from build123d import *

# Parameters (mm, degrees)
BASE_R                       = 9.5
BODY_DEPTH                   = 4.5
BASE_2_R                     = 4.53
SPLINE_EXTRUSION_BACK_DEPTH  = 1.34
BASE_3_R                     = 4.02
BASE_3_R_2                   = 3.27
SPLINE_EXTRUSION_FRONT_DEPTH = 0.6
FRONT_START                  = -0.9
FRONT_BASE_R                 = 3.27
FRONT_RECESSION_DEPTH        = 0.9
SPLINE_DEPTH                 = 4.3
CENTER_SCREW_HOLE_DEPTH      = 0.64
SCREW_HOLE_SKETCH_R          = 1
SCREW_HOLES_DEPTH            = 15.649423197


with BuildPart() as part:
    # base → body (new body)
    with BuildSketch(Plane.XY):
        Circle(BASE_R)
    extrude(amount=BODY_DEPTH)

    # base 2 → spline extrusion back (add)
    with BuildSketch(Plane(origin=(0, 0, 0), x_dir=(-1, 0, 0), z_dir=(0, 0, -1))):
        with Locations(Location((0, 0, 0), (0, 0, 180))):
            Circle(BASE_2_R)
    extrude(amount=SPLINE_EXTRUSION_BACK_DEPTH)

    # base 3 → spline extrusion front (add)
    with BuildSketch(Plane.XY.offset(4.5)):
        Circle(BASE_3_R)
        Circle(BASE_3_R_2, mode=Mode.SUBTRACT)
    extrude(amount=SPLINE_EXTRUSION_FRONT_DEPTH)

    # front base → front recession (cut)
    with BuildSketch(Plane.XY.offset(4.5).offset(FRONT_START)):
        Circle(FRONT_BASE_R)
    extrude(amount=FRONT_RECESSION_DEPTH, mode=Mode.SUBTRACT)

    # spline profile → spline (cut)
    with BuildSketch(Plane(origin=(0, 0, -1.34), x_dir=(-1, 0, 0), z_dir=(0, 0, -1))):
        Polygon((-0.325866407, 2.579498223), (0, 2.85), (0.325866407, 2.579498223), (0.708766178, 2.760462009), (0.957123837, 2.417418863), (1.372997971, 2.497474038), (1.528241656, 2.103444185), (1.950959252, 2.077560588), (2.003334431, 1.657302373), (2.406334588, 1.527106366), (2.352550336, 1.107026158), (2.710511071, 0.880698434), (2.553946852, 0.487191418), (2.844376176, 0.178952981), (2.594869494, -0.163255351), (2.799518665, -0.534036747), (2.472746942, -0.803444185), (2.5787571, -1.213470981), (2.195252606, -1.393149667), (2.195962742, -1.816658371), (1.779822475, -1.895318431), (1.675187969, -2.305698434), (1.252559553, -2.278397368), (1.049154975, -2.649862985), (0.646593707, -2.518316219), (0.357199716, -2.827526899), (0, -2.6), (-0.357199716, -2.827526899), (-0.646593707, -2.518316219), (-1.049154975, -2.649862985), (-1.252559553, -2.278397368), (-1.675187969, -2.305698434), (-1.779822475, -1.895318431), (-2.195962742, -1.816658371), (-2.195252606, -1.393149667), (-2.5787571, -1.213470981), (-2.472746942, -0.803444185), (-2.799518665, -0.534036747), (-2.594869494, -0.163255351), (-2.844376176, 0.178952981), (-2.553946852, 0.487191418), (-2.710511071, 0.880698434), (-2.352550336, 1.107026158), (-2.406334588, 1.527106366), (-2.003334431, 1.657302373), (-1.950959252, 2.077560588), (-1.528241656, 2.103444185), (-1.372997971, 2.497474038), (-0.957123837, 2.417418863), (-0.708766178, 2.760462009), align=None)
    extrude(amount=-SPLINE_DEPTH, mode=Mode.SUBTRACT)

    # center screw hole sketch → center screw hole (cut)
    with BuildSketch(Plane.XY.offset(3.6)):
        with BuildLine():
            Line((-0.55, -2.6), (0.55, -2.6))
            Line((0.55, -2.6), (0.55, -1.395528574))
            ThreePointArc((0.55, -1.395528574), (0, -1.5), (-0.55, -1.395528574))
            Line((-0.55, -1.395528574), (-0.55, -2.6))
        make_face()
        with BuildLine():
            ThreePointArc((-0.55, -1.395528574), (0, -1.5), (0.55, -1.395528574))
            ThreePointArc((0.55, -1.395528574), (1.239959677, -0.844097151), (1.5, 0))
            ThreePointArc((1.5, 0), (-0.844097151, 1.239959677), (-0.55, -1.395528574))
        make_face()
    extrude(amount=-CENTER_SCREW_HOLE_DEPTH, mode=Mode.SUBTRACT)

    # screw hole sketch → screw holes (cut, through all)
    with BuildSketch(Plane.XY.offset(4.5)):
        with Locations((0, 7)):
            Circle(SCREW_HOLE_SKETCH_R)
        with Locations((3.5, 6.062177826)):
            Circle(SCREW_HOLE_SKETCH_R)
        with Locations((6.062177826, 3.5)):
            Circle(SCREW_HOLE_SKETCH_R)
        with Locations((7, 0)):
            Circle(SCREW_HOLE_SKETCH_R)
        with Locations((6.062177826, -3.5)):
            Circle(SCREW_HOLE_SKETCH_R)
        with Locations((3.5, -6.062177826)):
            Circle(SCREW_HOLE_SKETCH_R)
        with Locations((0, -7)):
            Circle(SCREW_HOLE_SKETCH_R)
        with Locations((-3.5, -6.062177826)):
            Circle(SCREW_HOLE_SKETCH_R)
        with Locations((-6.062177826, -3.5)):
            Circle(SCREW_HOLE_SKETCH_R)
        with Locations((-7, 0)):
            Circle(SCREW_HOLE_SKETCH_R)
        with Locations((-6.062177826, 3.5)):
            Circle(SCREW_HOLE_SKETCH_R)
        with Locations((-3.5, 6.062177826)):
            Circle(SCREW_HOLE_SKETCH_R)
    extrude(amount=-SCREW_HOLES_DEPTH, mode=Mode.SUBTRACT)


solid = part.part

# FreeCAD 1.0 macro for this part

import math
import FreeCAD as App
import Part
import Sketcher

V = App.Vector
Q = App.Units.Quantity

doc = App.newDocument("Part")
body = doc.addObject("PartDesign::Body", "Body")

sketch1 = body.newObject("Sketcher::SketchObject", "Sketch")
sketch1.AttachmentSupport = (doc.getObject("XY_Plane"), [""])
sketch1.MapMode = "FlatFace"
sketch1.addGeometry(Part.Circle(V(0, 0, 0), V(0, 0, 1), 10), False)
sketch1.addConstraint(Sketcher.Constraint("Coincident", 0, 3, -1, 1))
sketch1.addConstraint(Sketcher.Constraint("Diameter", 0, Q("19 mm")))
pad1 = body.newObject("PartDesign::Pad", "Pad")
pad1.Profile = sketch1
pad1.Length = 4.5

sketch2 = body.newObject("Sketcher::SketchObject", "Sketch001")
sketch2.AttachmentSupport = (doc.getObject("XY_Plane"), [""])
sketch2.MapMode = "FlatFace"
sketch2.addGeometry(Part.Circle(V(0, 0, 0), V(0, 0, 1), 4.5), False)
sketch2.addConstraint(Sketcher.Constraint("Coincident", 0, 3, -1, 1))
sketch2.addConstraint(Sketcher.Constraint("Diameter", 0, Q("9.06 mm")))
pad2 = body.newObject("PartDesign::Pad", "Pad001")
pad2.Profile = sketch2
pad2.Length = 1.34
pad2.Reversed = True

sketch3 = body.newObject("Sketcher::SketchObject", "Sketch002")
sketch3.AttachmentSupport = (doc.getObject("XY_Plane"), [""])
sketch3.MapMode = "FlatFace"
sketch3.AttachmentOffset = App.Placement(V(0, 0, 4.5), App.Rotation())
sketch3.addGeometry(Part.Circle(V(0, 0, 0), V(0, 0, 1), 4), False)
sketch3.addGeometry(Part.Circle(V(0, 0, 0), V(0, 0, 1), 3.3), False)
sketch3.addConstraint(Sketcher.Constraint("Coincident", 0, 3, -1, 1))
sketch3.addConstraint(Sketcher.Constraint("Coincident", 1, 3, -1, 1))
sketch3.addConstraint(Sketcher.Constraint("Diameter", 0, Q("8.04 mm")))
sketch3.addConstraint(Sketcher.Constraint("Diameter", 1, Q("6.54 mm")))
pad3 = body.newObject("PartDesign::Pad", "Pad002")
pad3.Profile = sketch3
pad3.Length = 0.6

sketch4 = body.newObject("Sketcher::SketchObject", "Sketch003")
sketch4.AttachmentSupport = (doc.getObject("XY_Plane"), [""])
sketch4.MapMode = "FlatFace"
sketch4.AttachmentOffset = App.Placement(V(0, 0, 3.6), App.Rotation())
sketch4.addGeometry(Part.Circle(V(0, 0, 0), V(0, 0, 1), 3.3), False)
sketch4.addConstraint(Sketcher.Constraint("Coincident", 0, 3, -1, 1))
sketch4.addConstraint(Sketcher.Constraint("Diameter", 0, Q("6.54 mm")))
pocket1 = body.newObject("PartDesign::Pocket", "Pocket")
pocket1.Profile = sketch4
pocket1.Length = 0.9
pocket1.Reversed = True

sketch5 = body.newObject("Sketcher::SketchObject", "Sketch004")
sketch5.AttachmentSupport = (doc.getObject("XY_Plane"), [""])
sketch5.MapMode = "FlatFace"
sketch5.AttachmentOffset = App.Placement(V(0, 0, -1.34), App.Rotation())
sketch5.addGeometry(Part.LineSegment(V(0, 2.85, 0), V(0.33, 2.58, 0)), False)
sketch5.addGeometry(Part.LineSegment(V(0.33, 2.58, 0), V(0.71, 2.76, 0)), False)
sketch5.addGeometry(Part.LineSegment(V(0.71, 2.76, 0), V(0.96, 2.42, 0)), False)
sketch5.addGeometry(Part.LineSegment(V(0.96, 2.42, 0), V(1.37, 2.5, 0)), False)
sketch5.addGeometry(Part.LineSegment(V(1.37, 2.5, 0), V(1.53, 2.1, 0)), False)
sketch5.addGeometry(Part.LineSegment(V(1.53, 2.1, 0), V(1.95, 2.08, 0)), False)
sketch5.addGeometry(Part.LineSegment(V(1.95, 2.08, 0), V(2, 1.66, 0)), False)
sketch5.addGeometry(Part.LineSegment(V(2, 1.66, 0), V(2.41, 1.53, 0)), False)
sketch5.addGeometry(Part.LineSegment(V(2.41, 1.53, 0), V(2.35, 1.11, 0)), False)
sketch5.addGeometry(Part.LineSegment(V(2.35, 1.11, 0), V(2.71, 0.88, 0)), False)
sketch5.addGeometry(Part.LineSegment(V(2.71, 0.88, 0), V(2.55, 0.49, 0)), False)
sketch5.addGeometry(Part.LineSegment(V(2.55, 0.49, 0), V(2.84, 0.18, 0)), False)
sketch5.addGeometry(Part.LineSegment(V(2.84, 0.18, 0), V(2.59, -0.16, 0)), False)
sketch5.addGeometry(Part.LineSegment(V(2.59, -0.16, 0), V(2.8, -0.53, 0)), False)
sketch5.addGeometry(Part.LineSegment(V(2.8, -0.53, 0), V(2.47, -0.8, 0)), False)
sketch5.addGeometry(Part.LineSegment(V(2.47, -0.8, 0), V(2.58, -1.21, 0)), False)
sketch5.addGeometry(Part.LineSegment(V(2.58, -1.21, 0), V(2.2, -1.39, 0)), False)
sketch5.addGeometry(Part.LineSegment(V(2.2, -1.39, 0), V(2.2, -1.82, 0)), False)
sketch5.addGeometry(Part.LineSegment(V(2.2, -1.82, 0), V(1.78, -1.9, 0)), False)
sketch5.addGeometry(Part.LineSegment(V(1.78, -1.9, 0), V(1.68, -2.31, 0)), False)
sketch5.addGeometry(Part.LineSegment(V(1.68, -2.31, 0), V(1.25, -2.28, 0)), False)
sketch5.addGeometry(Part.LineSegment(V(1.25, -2.28, 0), V(1.05, -2.65, 0)), False)
sketch5.addGeometry(Part.LineSegment(V(1.05, -2.65, 0), V(0.65, -2.52, 0)), False)
sketch5.addGeometry(Part.LineSegment(V(0.65, -2.52, 0), V(0.36, -2.83, 0)), False)
sketch5.addGeometry(Part.LineSegment(V(0.36, -2.83, 0), V(0, -2.6, 0)), False)
sketch5.addGeometry(Part.LineSegment(V(0, -2.6, 0), V(-0.36, -2.83, 0)), False)
sketch5.addGeometry(Part.LineSegment(V(-0.36, -2.83, 0), V(-0.65, -2.52, 0)), False)
sketch5.addGeometry(Part.LineSegment(V(-0.65, -2.52, 0), V(-1.05, -2.65, 0)), False)
sketch5.addGeometry(Part.LineSegment(V(-1.05, -2.65, 0), V(-1.25, -2.28, 0)), False)
sketch5.addGeometry(Part.LineSegment(V(-1.25, -2.28, 0), V(-1.68, -2.31, 0)), False)
sketch5.addGeometry(Part.LineSegment(V(-1.68, -2.31, 0), V(-1.78, -1.9, 0)), False)
sketch5.addGeometry(Part.LineSegment(V(-1.78, -1.9, 0), V(-2.2, -1.82, 0)), False)
sketch5.addGeometry(Part.LineSegment(V(-2.2, -1.82, 0), V(-2.2, -1.39, 0)), False)
sketch5.addGeometry(Part.LineSegment(V(-2.2, -1.39, 0), V(-2.58, -1.21, 0)), False)
sketch5.addGeometry(Part.LineSegment(V(-2.58, -1.21, 0), V(-2.47, -0.8, 0)), False)
sketch5.addGeometry(Part.LineSegment(V(-2.47, -0.8, 0), V(-2.8, -0.53, 0)), False)
sketch5.addGeometry(Part.LineSegment(V(-2.8, -0.53, 0), V(-2.59, -0.16, 0)), False)
sketch5.addGeometry(Part.LineSegment(V(-2.59, -0.16, 0), V(-2.84, 0.18, 0)), False)
sketch5.addGeometry(Part.LineSegment(V(-2.84, 0.18, 0), V(-2.55, 0.49, 0)), False)
sketch5.addGeometry(Part.LineSegment(V(-2.55, 0.49, 0), V(-2.71, 0.88, 0)), False)
sketch5.addGeometry(Part.LineSegment(V(-2.71, 0.88, 0), V(-2.35, 1.11, 0)), False)
sketch5.addGeometry(Part.LineSegment(V(-2.35, 1.11, 0), V(-2.41, 1.53, 0)), False)
sketch5.addGeometry(Part.LineSegment(V(-2.41, 1.53, 0), V(-2, 1.66, 0)), False)
sketch5.addGeometry(Part.LineSegment(V(-2, 1.66, 0), V(-1.95, 2.08, 0)), False)
sketch5.addGeometry(Part.LineSegment(V(-1.95, 2.08, 0), V(-1.53, 2.1, 0)), False)
sketch5.addGeometry(Part.LineSegment(V(-1.53, 2.1, 0), V(-1.37, 2.5, 0)), False)
sketch5.addGeometry(Part.LineSegment(V(-1.37, 2.5, 0), V(-0.96, 2.42, 0)), False)
sketch5.addGeometry(Part.LineSegment(V(-0.96, 2.42, 0), V(-0.71, 2.76, 0)), False)
sketch5.addGeometry(Part.LineSegment(V(-0.71, 2.76, 0), V(-0.33, 2.58, 0)), False)
sketch5.addGeometry(Part.LineSegment(V(-0.33, 2.58, 0), V(0, 2.85, 0)), False)
sketch5.addConstraint(Sketcher.Constraint("Coincident", 0, 2, 1, 1))
sketch5.addConstraint(Sketcher.Constraint("Coincident", 1, 2, 2, 1))
sketch5.addConstraint(Sketcher.Constraint("Coincident", 2, 2, 3, 1))
sketch5.addConstraint(Sketcher.Constraint("Coincident", 3, 2, 4, 1))
sketch5.addConstraint(Sketcher.Constraint("Coincident", 4, 2, 5, 1))
sketch5.addConstraint(Sketcher.Constraint("Coincident", 5, 2, 6, 1))
sketch5.addConstraint(Sketcher.Constraint("Coincident", 6, 2, 7, 1))
sketch5.addConstraint(Sketcher.Constraint("Coincident", 7, 2, 8, 1))
sketch5.addConstraint(Sketcher.Constraint("Coincident", 8, 2, 9, 1))
sketch5.addConstraint(Sketcher.Constraint("Coincident", 9, 2, 10, 1))
sketch5.addConstraint(Sketcher.Constraint("Coincident", 10, 2, 11, 1))
sketch5.addConstraint(Sketcher.Constraint("Coincident", 11, 2, 12, 1))
sketch5.addConstraint(Sketcher.Constraint("Coincident", 12, 2, 13, 1))
sketch5.addConstraint(Sketcher.Constraint("Coincident", 13, 2, 14, 1))
sketch5.addConstraint(Sketcher.Constraint("Coincident", 14, 2, 15, 1))
sketch5.addConstraint(Sketcher.Constraint("Coincident", 15, 2, 16, 1))
sketch5.addConstraint(Sketcher.Constraint("Coincident", 16, 2, 17, 1))
sketch5.addConstraint(Sketcher.Constraint("Coincident", 17, 2, 18, 1))
sketch5.addConstraint(Sketcher.Constraint("Coincident", 18, 2, 19, 1))
sketch5.addConstraint(Sketcher.Constraint("Coincident", 19, 2, 20, 1))
sketch5.addConstraint(Sketcher.Constraint("Coincident", 20, 2, 21, 1))
sketch5.addConstraint(Sketcher.Constraint("Coincident", 21, 2, 22, 1))
sketch5.addConstraint(Sketcher.Constraint("Coincident", 22, 2, 23, 1))
sketch5.addConstraint(Sketcher.Constraint("Coincident", 23, 2, 24, 1))
sketch5.addConstraint(Sketcher.Constraint("Coincident", 24, 2, 25, 1))
sketch5.addConstraint(Sketcher.Constraint("Coincident", 25, 2, 26, 1))
sketch5.addConstraint(Sketcher.Constraint("Coincident", 26, 2, 27, 1))
sketch5.addConstraint(Sketcher.Constraint("Coincident", 27, 2, 28, 1))
sketch5.addConstraint(Sketcher.Constraint("Coincident", 28, 2, 29, 1))
sketch5.addConstraint(Sketcher.Constraint("Coincident", 29, 2, 30, 1))
sketch5.addConstraint(Sketcher.Constraint("Coincident", 30, 2, 31, 1))
sketch5.addConstraint(Sketcher.Constraint("Coincident", 31, 2, 32, 1))
sketch5.addConstraint(Sketcher.Constraint("Coincident", 32, 2, 33, 1))
sketch5.addConstraint(Sketcher.Constraint("Coincident", 33, 2, 34, 1))
sketch5.addConstraint(Sketcher.Constraint("Coincident", 34, 2, 35, 1))
sketch5.addConstraint(Sketcher.Constraint("Coincident", 35, 2, 36, 1))
sketch5.addConstraint(Sketcher.Constraint("Coincident", 36, 2, 37, 1))
sketch5.addConstraint(Sketcher.Constraint("Coincident", 37, 2, 38, 1))
sketch5.addConstraint(Sketcher.Constraint("Coincident", 38, 2, 39, 1))
sketch5.addConstraint(Sketcher.Constraint("Coincident", 39, 2, 40, 1))
sketch5.addConstraint(Sketcher.Constraint("Coincident", 40, 2, 41, 1))
sketch5.addConstraint(Sketcher.Constraint("Coincident", 41, 2, 42, 1))
sketch5.addConstraint(Sketcher.Constraint("Coincident", 42, 2, 43, 1))
sketch5.addConstraint(Sketcher.Constraint("Coincident", 43, 2, 44, 1))
sketch5.addConstraint(Sketcher.Constraint("Coincident", 44, 2, 45, 1))
sketch5.addConstraint(Sketcher.Constraint("Coincident", 45, 2, 46, 1))
sketch5.addConstraint(Sketcher.Constraint("Coincident", 46, 2, 47, 1))
sketch5.addConstraint(Sketcher.Constraint("Coincident", 47, 2, 48, 1))
sketch5.addConstraint(Sketcher.Constraint("Coincident", 48, 2, 49, 1))
sketch5.addConstraint(Sketcher.Constraint("Coincident", 49, 2, 0, 1))
sketch5.addConstraint(Sketcher.Constraint("Symmetric", 23, 2, 25, 2, -2))
sketch5.addConstraint(Sketcher.Constraint("Symmetric", 22, 2, 26, 2, -2))
sketch5.addConstraint(Sketcher.Constraint("Symmetric", 21, 2, 27, 2, -2))
sketch5.addConstraint(Sketcher.Constraint("Symmetric", 20, 2, 28, 2, -2))
sketch5.addConstraint(Sketcher.Constraint("Symmetric", 19, 2, 29, 2, -2))
sketch5.addConstraint(Sketcher.Constraint("Symmetric", 18, 2, 30, 2, -2))
sketch5.addConstraint(Sketcher.Constraint("Symmetric", 17, 2, 31, 2, -2))
sketch5.addConstraint(Sketcher.Constraint("Symmetric", 16, 2, 32, 2, -2))
sketch5.addConstraint(Sketcher.Constraint("Symmetric", 15, 2, 33, 2, -2))
sketch5.addConstraint(Sketcher.Constraint("Symmetric", 14, 2, 34, 2, -2))
sketch5.addConstraint(Sketcher.Constraint("Symmetric", 13, 2, 35, 2, -2))
sketch5.addConstraint(Sketcher.Constraint("Symmetric", 12, 2, 36, 2, -2))
sketch5.addConstraint(Sketcher.Constraint("Symmetric", 11, 2, 37, 2, -2))
sketch5.addConstraint(Sketcher.Constraint("Symmetric", 10, 2, 38, 2, -2))
sketch5.addConstraint(Sketcher.Constraint("Symmetric", 9, 2, 39, 2, -2))
sketch5.addConstraint(Sketcher.Constraint("Symmetric", 8, 2, 40, 2, -2))
sketch5.addConstraint(Sketcher.Constraint("Symmetric", 7, 2, 41, 2, -2))
sketch5.addConstraint(Sketcher.Constraint("Symmetric", 6, 2, 42, 2, -2))
sketch5.addConstraint(Sketcher.Constraint("Symmetric", 5, 2, 43, 2, -2))
sketch5.addConstraint(Sketcher.Constraint("Symmetric", 4, 2, 44, 2, -2))
sketch5.addConstraint(Sketcher.Constraint("Symmetric", 3, 2, 45, 2, -2))
sketch5.addConstraint(Sketcher.Constraint("Symmetric", 2, 2, 46, 2, -2))
sketch5.addConstraint(Sketcher.Constraint("Symmetric", 1, 2, 47, 2, -2))
sketch5.addConstraint(Sketcher.Constraint("Symmetric", 0, 2, 48, 2, -2))
sketch5.addConstraint(Sketcher.Constraint("PointOnObject", 24, 2, -2))
sketch5.addConstraint(Sketcher.Constraint("PointOnObject", 49, 2, -2))
sketch5.addConstraint(Sketcher.Constraint("Equal", 0, 1))
sketch5.addConstraint(Sketcher.Constraint("Equal", 1, 2))
sketch5.addConstraint(Sketcher.Constraint("Equal", 2, 3))
sketch5.addConstraint(Sketcher.Constraint("Equal", 3, 4))
sketch5.addConstraint(Sketcher.Constraint("Equal", 4, 5))
sketch5.addConstraint(Sketcher.Constraint("Equal", 5, 6))
sketch5.addConstraint(Sketcher.Constraint("Equal", 6, 7))
sketch5.addConstraint(Sketcher.Constraint("Equal", 7, 8))
sketch5.addConstraint(Sketcher.Constraint("Equal", 8, 9))
sketch5.addConstraint(Sketcher.Constraint("Equal", 9, 10))
sketch5.addConstraint(Sketcher.Constraint("Equal", 10, 11))
sketch5.addConstraint(Sketcher.Constraint("Equal", 11, 12))
sketch5.addConstraint(Sketcher.Constraint("Equal", 12, 13))
sketch5.addConstraint(Sketcher.Constraint("Equal", 13, 14))
sketch5.addConstraint(Sketcher.Constraint("Equal", 14, 15))
sketch5.addConstraint(Sketcher.Constraint("Equal", 15, 16))
sketch5.addConstraint(Sketcher.Constraint("Equal", 16, 17))
sketch5.addConstraint(Sketcher.Constraint("Equal", 17, 18))
sketch5.addConstraint(Sketcher.Constraint("Equal", 18, 19))
sketch5.addConstraint(Sketcher.Constraint("Equal", 19, 20))
sketch5.addConstraint(Sketcher.Constraint("Equal", 20, 21))
sketch5.addConstraint(Sketcher.Constraint("Equal", 21, 22))
sketch5.addConstraint(Sketcher.Constraint("Equal", 22, 23))
sketch5.addConstraint(Sketcher.Constraint("Equal", 23, 24))
sketch5.addConstraint(Sketcher.Constraint("DistanceY", 24, 2, -1, 1, Q("2.6 mm")))
sketch5.addConstraint(Sketcher.Constraint("DistanceY", -1, 1, 49, 2, Q("2.85 mm")))
sketch5.addConstraint(Sketcher.Constraint("DistanceX", 6, 2, 7, 2, Q("0.403 mm")))
sketch5.addConstraint(Sketcher.Constraint("DistanceY", -1, 1, 0, 2, Q("2.579498 mm")))
sketch5.addConstraint(Sketcher.Constraint("DistanceY", -1, 1, 9, 2, Q("0.880698 mm")))
sketch5.addConstraint(Sketcher.Constraint("DistanceY", 19, 2, -1, 1, Q("2.305698 mm")))
sketch5.addConstraint(Sketcher.Constraint("DistanceX", -1, 1, 23, 2, Q("0.3572 mm")))
sketch5.addConstraint(Sketcher.Constraint("DistanceX", 0, 2, 1, 2, Q("0.3829 mm")))
sketch5.addConstraint(Sketcher.Constraint("DistanceY", 5, 2, 1, 2, Q("0.682901 mm")))
sketch5.addConstraint(Sketcher.Constraint("DistanceX", 14, 2, 10, 2, Q("0.0812 mm")))
sketch5.addConstraint(Sketcher.Constraint("DistanceY", 19, 2, 20, 2, Q("0.027301 mm")))
sketch5.addConstraint(Sketcher.Constraint("Distance", 0, Q("0.423509 mm")))
sketch5.addConstraint(Sketcher.Constraint("DistanceY", -1, 1, 2, 2, Q("2.417419 mm")))
sketch5.addConstraint(Sketcher.Constraint("DistanceX", -1, 1, 4, 2, Q("1.528242 mm")))
sketch5.addConstraint(Sketcher.Constraint("DistanceX", -1, 1, 5, 2, Q("1.950959 mm")))
sketch5.addConstraint(Sketcher.Constraint("DistanceX", -1, 1, 8, 2, Q("2.35255 mm")))
sketch5.addConstraint(Sketcher.Constraint("DistanceX", -1, 1, 9, 2, Q("2.710511 mm")))
sketch5.addConstraint(Sketcher.Constraint("DistanceY", -1, 1, 10, 2, Q("0.487191 mm")))
sketch5.addConstraint(Sketcher.Constraint("DistanceX", -1, 1, 12, 2, Q("2.594869 mm")))
sketch5.addConstraint(Sketcher.Constraint("DistanceX", -1, 1, 13, 2, Q("2.799519 mm")))
sketch5.addConstraint(Sketcher.Constraint("DistanceY", 15, 2, -1, 1, Q("1.213471 mm")))
sketch5.addConstraint(Sketcher.Constraint("DistanceY", 16, 2, -1, 1, Q("1.39315 mm")))
sketch5.addConstraint(Sketcher.Constraint("DistanceY", 18, 2, -1, 1, Q("1.895318 mm")))
sketch5.addConstraint(Sketcher.Constraint("DistanceX", -1, 1, 20, 2, Q("1.25256 mm")))
sketch5.addConstraint(Sketcher.Constraint("DistanceX", 10, 2, 11, 2, Q("0.290429 mm")))
sketch5.addConstraint(Sketcher.Constraint("DistanceX", 22, 2, 21, 2, Q("0.402561 mm")))
pocket2 = body.newObject("PartDesign::Pocket", "Pocket001")
pocket2.Profile = sketch5
pocket2.Length = 4.3
pocket2.Reversed = True

sketch6 = body.newObject("Sketcher::SketchObject", "Sketch005")
sketch6.AttachmentSupport = (doc.getObject("XY_Plane"), [""])
sketch6.MapMode = "FlatFace"
sketch6.AttachmentOffset = App.Placement(V(0, 0, 3.6), App.Rotation())
sketch6.addGeometry(Part.LineSegment(V(-0.6, -2.6, 0), V(0.6, -2.6, 0)), False)
sketch6.addGeometry(Part.LineSegment(V(0.6, -2.6, 0), V(0.6, -1.4, 0)), False)
sketch6.addGeometry(Part.ArcOfCircle(Part.Circle(V(0, 0, 0), V(0, 0, 1), 1.5), math.radians(-68), math.radians(0)), False)
sketch6.addGeometry(Part.ArcOfCircle(Part.Circle(V(0, 0, 0), V(0, 0, 1), 1.5), math.radians(0), math.radians(248)), False)
sketch6.addGeometry(Part.LineSegment(V(-0.6, -1.4, 0), V(-0.6, -2.6, 0)), False)
sketch6.addConstraint(Sketcher.Constraint("Coincident", 0, 2, 1, 1))
sketch6.addConstraint(Sketcher.Constraint("Coincident", 1, 2, 2, 1))
sketch6.addConstraint(Sketcher.Constraint("Tangent", 2, 2, 3, 1))
sketch6.addConstraint(Sketcher.Constraint("Coincident", 3, 2, 4, 1))
sketch6.addConstraint(Sketcher.Constraint("Coincident", 4, 2, 0, 1))
sketch6.addConstraint(Sketcher.Constraint("Horizontal", 0))
sketch6.addConstraint(Sketcher.Constraint("Vertical", 1))
sketch6.addConstraint(Sketcher.Constraint("Vertical", 4))
sketch6.addConstraint(Sketcher.Constraint("Coincident", 2, 3, -1, 1))
sketch6.addConstraint(Sketcher.Constraint("Equal", 2, 3))
sketch6.addConstraint(Sketcher.Constraint("PointOnObject", 2, 2, -1))
sketch6.addConstraint(Sketcher.Constraint("Horizontal", 1, 2, 3, 2))
sketch6.addConstraint(Sketcher.Constraint("Radius", 2, Q("1.5 mm")))
sketch6.addConstraint(Sketcher.Constraint("DistanceX", 0, 1, 0, 2, Q("1.1 mm")))
sketch6.addConstraint(Sketcher.Constraint("DistanceY", 0, 2, -1, 1, Q("2.6 mm")))
pocket3 = body.newObject("PartDesign::Pocket", "Pocket002")
pocket3.Profile = sketch6
pocket3.Length = 0.64

sketch7 = body.newObject("Sketcher::SketchObject", "Sketch006")
sketch7.AttachmentSupport = (doc.getObject("XY_Plane"), [""])
sketch7.MapMode = "FlatFace"
sketch7.AttachmentOffset = App.Placement(V(0, 0, 4.5), App.Rotation())
sketch7.addGeometry(Part.Circle(V(0, 7, 0), V(0, 0, 1), 1), False)
sketch7.addGeometry(Part.Circle(V(3.5, 6.1, 0), V(0, 0, 1), 1), False)
sketch7.addGeometry(Part.Circle(V(6.1, 3.5, 0), V(0, 0, 1), 1), False)
sketch7.addGeometry(Part.Circle(V(7, 0, 0), V(0, 0, 1), 1), False)
sketch7.addGeometry(Part.Circle(V(6.1, -3.5, 0), V(0, 0, 1), 1), False)
sketch7.addGeometry(Part.Circle(V(3.5, -6.1, 0), V(0, 0, 1), 1), False)
sketch7.addGeometry(Part.Circle(V(0, -7, 0), V(0, 0, 1), 1), False)
sketch7.addGeometry(Part.Circle(V(-3.5, -6.1, 0), V(0, 0, 1), 1), False)
sketch7.addGeometry(Part.Circle(V(-6.1, -3.5, 0), V(0, 0, 1), 1), False)
sketch7.addGeometry(Part.Circle(V(-7, 0, 0), V(0, 0, 1), 1), False)
sketch7.addGeometry(Part.Circle(V(-6.1, 3.5, 0), V(0, 0, 1), 1), False)
sketch7.addGeometry(Part.Circle(V(-3.5, 6.1, 0), V(0, 0, 1), 1), False)
sketch7.addConstraint(Sketcher.Constraint("Equal", 0, 1))
sketch7.addConstraint(Sketcher.Constraint("Equal", 1, 2))
sketch7.addConstraint(Sketcher.Constraint("Equal", 2, 3))
sketch7.addConstraint(Sketcher.Constraint("Equal", 3, 4))
sketch7.addConstraint(Sketcher.Constraint("Equal", 4, 5))
sketch7.addConstraint(Sketcher.Constraint("Equal", 5, 6))
sketch7.addConstraint(Sketcher.Constraint("Equal", 6, 7))
sketch7.addConstraint(Sketcher.Constraint("Equal", 7, 8))
sketch7.addConstraint(Sketcher.Constraint("Equal", 8, 9))
sketch7.addConstraint(Sketcher.Constraint("Equal", 9, 10))
sketch7.addConstraint(Sketcher.Constraint("Equal", 10, 11))
sketch7.addConstraint(Sketcher.Constraint("Symmetric", 0, 3, 6, 3, -1, 1))
sketch7.addConstraint(Sketcher.Constraint("Symmetric", 1, 3, 7, 3, -1, 1))
sketch7.addConstraint(Sketcher.Constraint("Symmetric", 2, 3, 8, 3, -1, 1))
sketch7.addConstraint(Sketcher.Constraint("Symmetric", 3, 3, 9, 3, -1, 1))
sketch7.addConstraint(Sketcher.Constraint("Symmetric", 4, 3, 10, 3, -1, 1))
sketch7.addConstraint(Sketcher.Constraint("Symmetric", 5, 3, 11, 3, -1, 1))
sketch7.addConstraint(Sketcher.Constraint("Symmetric", 5, 3, 7, 3, -2))
sketch7.addConstraint(Sketcher.Constraint("Symmetric", 4, 3, 8, 3, -2))
sketch7.addConstraint(Sketcher.Constraint("PointOnObject", 0, 3, -2))
sketch7.addConstraint(Sketcher.Constraint("PointOnObject", 3, 3, -1))
sketch7.addConstraint(Sketcher.Constraint("Diameter", 0, Q("2 mm")))
sketch7.addConstraint(Sketcher.Constraint("DistanceY", -1, 1, 0, 3, Q("7 mm")))
sketch7.addConstraint(Sketcher.Constraint("DistanceX", -1, 1, 3, 3, Q("7 mm")))
sketch7.addConstraint(Sketcher.Constraint("DistanceY", 4, 3, 2, 3, Q("7 mm")))
sketch7.addConstraint(Sketcher.Constraint("DistanceX", 7, 3, 5, 3, Q("7 mm")))
sketch7.addConstraint(Sketcher.Constraint("DistanceY", -1, 1, 1, 3, Q("6.062178 mm")))
sketch7.addConstraint(Sketcher.Constraint("DistanceX", -1, 1, 2, 3, Q("6.062178 mm")))
pocket4 = body.newObject("PartDesign::Pocket", "Pocket003")
pocket4.Profile = sketch7
pocket4.Type = "ThroughAll"

doc.recompute()
